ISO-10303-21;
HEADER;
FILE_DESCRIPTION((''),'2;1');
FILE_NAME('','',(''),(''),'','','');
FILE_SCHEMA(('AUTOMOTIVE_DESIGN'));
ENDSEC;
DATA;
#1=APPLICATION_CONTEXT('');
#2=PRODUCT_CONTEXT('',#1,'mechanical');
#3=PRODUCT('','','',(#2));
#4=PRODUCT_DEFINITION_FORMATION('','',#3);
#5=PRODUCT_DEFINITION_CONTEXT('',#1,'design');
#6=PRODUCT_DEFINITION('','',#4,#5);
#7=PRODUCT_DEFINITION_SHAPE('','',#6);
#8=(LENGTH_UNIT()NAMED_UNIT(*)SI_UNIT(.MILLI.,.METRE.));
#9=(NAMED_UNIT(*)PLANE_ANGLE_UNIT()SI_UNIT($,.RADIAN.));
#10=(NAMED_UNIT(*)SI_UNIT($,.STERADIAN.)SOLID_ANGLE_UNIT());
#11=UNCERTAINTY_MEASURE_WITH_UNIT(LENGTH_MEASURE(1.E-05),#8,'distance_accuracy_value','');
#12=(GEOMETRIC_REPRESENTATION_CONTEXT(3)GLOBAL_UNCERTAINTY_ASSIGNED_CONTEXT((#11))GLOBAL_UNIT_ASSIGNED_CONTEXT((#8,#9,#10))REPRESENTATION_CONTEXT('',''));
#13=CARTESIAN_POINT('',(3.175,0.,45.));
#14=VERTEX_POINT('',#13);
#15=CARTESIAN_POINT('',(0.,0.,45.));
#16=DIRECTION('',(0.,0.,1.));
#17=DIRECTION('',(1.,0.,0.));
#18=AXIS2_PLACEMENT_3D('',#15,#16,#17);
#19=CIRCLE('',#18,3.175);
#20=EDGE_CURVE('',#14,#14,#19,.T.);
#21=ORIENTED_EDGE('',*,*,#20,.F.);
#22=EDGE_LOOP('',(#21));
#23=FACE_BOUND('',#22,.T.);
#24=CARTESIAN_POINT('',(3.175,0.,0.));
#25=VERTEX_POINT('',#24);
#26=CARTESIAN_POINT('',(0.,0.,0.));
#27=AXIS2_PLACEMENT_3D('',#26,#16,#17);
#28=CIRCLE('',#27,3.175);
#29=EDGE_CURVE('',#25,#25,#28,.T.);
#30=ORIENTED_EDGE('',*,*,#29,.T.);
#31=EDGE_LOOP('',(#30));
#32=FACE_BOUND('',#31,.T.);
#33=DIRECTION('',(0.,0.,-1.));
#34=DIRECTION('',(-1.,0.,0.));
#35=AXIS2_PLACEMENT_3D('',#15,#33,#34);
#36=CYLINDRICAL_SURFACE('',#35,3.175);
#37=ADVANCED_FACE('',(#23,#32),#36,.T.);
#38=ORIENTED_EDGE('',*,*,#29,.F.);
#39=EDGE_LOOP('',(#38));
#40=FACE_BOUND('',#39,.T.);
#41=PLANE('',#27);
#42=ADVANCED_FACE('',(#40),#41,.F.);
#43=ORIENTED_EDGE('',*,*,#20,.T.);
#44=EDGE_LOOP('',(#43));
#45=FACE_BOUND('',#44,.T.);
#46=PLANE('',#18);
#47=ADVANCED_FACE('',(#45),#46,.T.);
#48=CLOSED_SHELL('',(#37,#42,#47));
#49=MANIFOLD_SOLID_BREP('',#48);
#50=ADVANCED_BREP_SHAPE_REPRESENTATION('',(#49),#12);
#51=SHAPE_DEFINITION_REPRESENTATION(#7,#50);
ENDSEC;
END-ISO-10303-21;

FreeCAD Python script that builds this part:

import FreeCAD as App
import Part
import Sketcher

V = App.Vector

doc = App.newDocument("Part")
body = doc.addObject("PartDesign::Body", "Body")

# Sketch on XY plane
sketch1 = body.newObject("Sketcher::SketchObject", "Sketch")
sketch1.AttachmentSupport = (doc.getObject("XY_Plane"), [""])
sketch1.MapMode = "FlatFace"
sketch1.addGeometry(Part.Circle(V(0, 0, 0), V(0, 0, 1), 3.2), False)
sketch1.addConstraint([
    Sketcher.Constraint("Coincident", 0, 3, -1, 1),
    Sketcher.Constraint("Diameter", 0, 6.35),
])
pad1 = body.newObject("PartDesign::Pad", "Pad")
pad1.Profile = sketch1
pad1.Length = 45

doc.recompute()
